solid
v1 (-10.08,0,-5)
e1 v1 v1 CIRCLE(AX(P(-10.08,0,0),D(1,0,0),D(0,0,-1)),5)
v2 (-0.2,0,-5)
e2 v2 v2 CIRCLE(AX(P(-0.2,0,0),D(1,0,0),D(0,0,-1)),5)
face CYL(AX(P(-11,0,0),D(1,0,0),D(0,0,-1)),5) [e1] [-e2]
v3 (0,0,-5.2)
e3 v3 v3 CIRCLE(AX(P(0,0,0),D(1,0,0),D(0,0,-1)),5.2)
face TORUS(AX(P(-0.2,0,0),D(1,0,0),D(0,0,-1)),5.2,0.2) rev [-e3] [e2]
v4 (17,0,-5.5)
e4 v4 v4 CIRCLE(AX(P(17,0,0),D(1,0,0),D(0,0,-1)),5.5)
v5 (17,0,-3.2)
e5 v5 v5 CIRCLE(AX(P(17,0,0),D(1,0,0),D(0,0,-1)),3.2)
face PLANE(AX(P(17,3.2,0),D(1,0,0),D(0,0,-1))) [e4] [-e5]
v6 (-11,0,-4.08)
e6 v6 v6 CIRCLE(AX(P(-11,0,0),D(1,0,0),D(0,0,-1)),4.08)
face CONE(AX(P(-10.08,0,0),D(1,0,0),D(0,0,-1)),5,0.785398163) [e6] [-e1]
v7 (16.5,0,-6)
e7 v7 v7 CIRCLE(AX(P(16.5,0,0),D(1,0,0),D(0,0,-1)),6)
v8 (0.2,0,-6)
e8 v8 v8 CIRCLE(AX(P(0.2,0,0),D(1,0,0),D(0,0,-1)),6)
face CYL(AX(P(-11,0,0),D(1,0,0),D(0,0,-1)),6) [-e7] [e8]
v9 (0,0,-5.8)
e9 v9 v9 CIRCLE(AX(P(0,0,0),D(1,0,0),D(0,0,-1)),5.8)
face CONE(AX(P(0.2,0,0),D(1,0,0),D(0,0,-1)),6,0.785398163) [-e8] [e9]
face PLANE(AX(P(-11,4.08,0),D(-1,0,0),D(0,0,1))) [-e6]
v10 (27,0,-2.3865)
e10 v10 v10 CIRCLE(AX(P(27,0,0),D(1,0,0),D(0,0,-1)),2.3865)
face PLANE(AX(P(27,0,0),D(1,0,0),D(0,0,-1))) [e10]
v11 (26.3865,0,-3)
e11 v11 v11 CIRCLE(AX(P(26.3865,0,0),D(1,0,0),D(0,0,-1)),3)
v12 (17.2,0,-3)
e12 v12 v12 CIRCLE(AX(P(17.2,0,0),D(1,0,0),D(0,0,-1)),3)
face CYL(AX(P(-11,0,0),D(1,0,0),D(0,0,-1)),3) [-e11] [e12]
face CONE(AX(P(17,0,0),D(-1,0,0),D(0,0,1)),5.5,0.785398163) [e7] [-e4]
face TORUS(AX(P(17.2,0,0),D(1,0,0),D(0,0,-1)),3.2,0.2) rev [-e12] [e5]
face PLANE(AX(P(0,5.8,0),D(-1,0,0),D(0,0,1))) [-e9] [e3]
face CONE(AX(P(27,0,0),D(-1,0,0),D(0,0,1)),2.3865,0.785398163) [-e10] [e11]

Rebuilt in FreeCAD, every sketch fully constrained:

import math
import FreeCAD as App
import Part
import Sketcher
from FreeCAD import Vector
Q = App.Units.Quantity

doc = App.newDocument("Part")
params = doc.addObject("Spreadsheet::Sheet", "Params")
for row, (alias, value) in enumerate([
    ("sketch1_radius", "0.2 mm"),
    ("sketch1_width", "38 mm"),
    ("sketch1_width2", "16.3 mm"),
    ("sketch1_height", "2.3 mm"),
    ("sketch1_height2", "0.6 mm"),
    ("revolution_angle", "360 deg"),
], start=1):
    params.set(f"A{row}", alias)
    params.set(f"B{row}", "=" + value)
    params.setAlias(f"B{row}", alias)

body = doc.addObject("PartDesign::Body", "Body")

# Sketch on XY plane
sketch1 = body.newObject("Sketcher::SketchObject", "Sketch")
sketch1.AttachmentSupport = (doc.getObject("XY_Plane"), [""])
sketch1.MapMode = "FlatFace"
sketch1.addGeometry([
    Part.LineSegment(Vector(-11, 4.08, 0), Vector(-11, 0, 0)),  # 0
    Part.LineSegment(Vector(-11, 0, 0), Vector(27, 0, 0)),  # 1
    Part.LineSegment(Vector(27, 0, 0), Vector(27, 2.39, 0)),  # 2
    Part.LineSegment(Vector(27, 2.39, 0), Vector(26.39, 3, 0)),  # 3
    Part.LineSegment(Vector(26.39, 3, 0), Vector(17.2, 3, 0)),  # 4
    Part.ArcOfCircle(Part.Circle(Vector(17.2, 3.2, 0), Vector(0, 0, 1), 0.2), math.radians(-180), math.radians(-90)),  # 5
    Part.LineSegment(Vector(17, 3.2, 0), Vector(17, 5.5, 0)),  # 6
    Part.LineSegment(Vector(17, 5.5, 0), Vector(16.5, 6, 0)),  # 7
    Part.LineSegment(Vector(16.5, 6, 0), Vector(0.2, 6, 0)),  # 8
    Part.LineSegment(Vector(0.2, 6, 0), Vector(0, 5.8, 0)),  # 9
    Part.LineSegment(Vector(0, 5.8, 0), Vector(0, 5.2, 0)),  # 10
    Part.ArcOfCircle(Part.Circle(Vector(-0.2, 5.2, 0), Vector(0, 0, 1), 0.2), math.radians(-90), math.radians(0)),  # 11
    Part.LineSegment(Vector(-0.2, 5, 0), Vector(-10.08, 5, 0)),  # 12
    Part.LineSegment(Vector(-10.08, 5, 0), Vector(-11, 4.08, 0)),  # 13
], False)
sketch1.addConstraint([
    Sketcher.Constraint("Coincident", 0, 2, 1, 1),
    Sketcher.Constraint("Coincident", 1, 2, 2, 1),
    Sketcher.Constraint("Coincident", 2, 2, 3, 1),
    Sketcher.Constraint("Coincident", 3, 2, 4, 1),
    Sketcher.Constraint("Tangent", 4, 2, 5, 2),
    Sketcher.Constraint("Tangent", 5, 1, 6, 1),
    Sketcher.Constraint("Coincident", 6, 2, 7, 1),
    Sketcher.Constraint("Coincident", 7, 2, 8, 1),
    Sketcher.Constraint("Coincident", 8, 2, 9, 1),
    Sketcher.Constraint("Coincident", 9, 2, 10, 1),
    Sketcher.Constraint("Tangent", 10, 2, 11, 2),
    Sketcher.Constraint("Tangent", 11, 1, 12, 1),
    Sketcher.Constraint("Coincident", 12, 2, 13, 1),
    Sketcher.Constraint("Coincident", 13, 2, 0, 1),
    Sketcher.Constraint("Vertical", 0),
    Sketcher.Constraint("Horizontal", 1),
    Sketcher.Constraint("Vertical", 2),
    Sketcher.Constraint("Horizontal", 4),
    Sketcher.Constraint("Vertical", 6),
    Sketcher.Constraint("Horizontal", 8),
    Sketcher.Constraint("Vertical", 10),
    Sketcher.Constraint("Horizontal", 12),
    Sketcher.Constraint("Equal", 5, 11),
    Sketcher.Constraint("PointOnObject", 0, 2, -1),
    Sketcher.Constraint("PointOnObject", 9, 2, -2),
    Sketcher.Constraint("Parallel", 3, 7),
    Sketcher.Constraint("Perpendicular", 7, 9),
    Sketcher.Constraint("Parallel", 9, 13),
    Sketcher.Constraint("Radius", 5, 0.2),
    Sketcher.Constraint("DistanceX", 1, 1, 1, 2, 38.0),
    Sketcher.Constraint("Angle", 3, Q("135 deg")),
    Sketcher.Constraint("DistanceX", 8, 2, 8, 1, 16.3),
    Sketcher.Constraint("DistanceY", 6, 1, 6, 2, 2.3),
    Sketcher.Constraint("DistanceY", 10, 2, 10, 1, 0.6),
    Sketcher.Constraint("DistanceX", 0, 2, -1, 1, 11.0),
    Sketcher.Constraint("DistanceY", -1, 1, 3, 2, 3.0),
    Sketcher.Constraint("DistanceX", -1, 1, 5, 1, 17.0),
    Sketcher.Constraint("DistanceY", -1, 1, 7, 2, 6.0),
    Sketcher.Constraint("DistanceX", 12, 2, 12, 1, 9.88),
    Sketcher.Constraint("DistanceX", 4, 2, 4, 1, 9.1865),
])
sketch1.setExpression("Constraints[28]", "Params.sketch1_radius")
sketch1.setExpression("Constraints[29]", "Params.sketch1_width")
sketch1.setExpression("Constraints[31]", "Params.sketch1_width2")
sketch1.setExpression("Constraints[32]", "Params.sketch1_height")
sketch1.setExpression("Constraints[33]", "Params.sketch1_height2")
revolution = body.newObject("PartDesign::Revolution", "Revolution")
revolution.Profile = sketch1
revolution.ReferenceAxis = (sketch1, ["H_Axis"])
revolution.setExpression("Angle", "Params.revolution_angle")

doc.recompute()
